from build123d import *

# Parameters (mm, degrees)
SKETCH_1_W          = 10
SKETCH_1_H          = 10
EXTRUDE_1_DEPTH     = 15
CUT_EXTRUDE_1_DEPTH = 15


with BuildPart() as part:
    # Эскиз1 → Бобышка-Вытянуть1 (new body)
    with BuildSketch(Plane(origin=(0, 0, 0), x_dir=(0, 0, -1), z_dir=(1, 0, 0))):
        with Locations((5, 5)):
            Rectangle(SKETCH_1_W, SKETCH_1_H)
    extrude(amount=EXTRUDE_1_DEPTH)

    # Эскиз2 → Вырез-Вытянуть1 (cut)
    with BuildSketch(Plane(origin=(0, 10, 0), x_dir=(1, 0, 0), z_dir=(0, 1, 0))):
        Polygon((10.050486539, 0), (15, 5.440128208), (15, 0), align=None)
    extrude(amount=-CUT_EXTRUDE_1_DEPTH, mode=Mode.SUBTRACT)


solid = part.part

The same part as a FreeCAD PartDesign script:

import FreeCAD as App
import Part
import Sketcher

V = App.Vector

doc = App.newDocument("Part")
body = doc.addObject("PartDesign::Body", "Body")

# Sketch on YZ plane
sketch1 = body.newObject("Sketcher::SketchObject", "Sketch")
sketch1.AttachmentSupport = (doc.getObject("YZ_Plane"), [""])
sketch1.MapMode = "FlatFace"
sketch1.addGeometry(Part.LineSegment(V(10, 0, 0), V(0, 0, 0)), False)
sketch1.addGeometry(Part.LineSegment(V(0, 0, 0), V(0, -10, 0)), False)
sketch1.addGeometry(Part.LineSegment(V(0, -10, 0), V(10, -10, 0)), False)
sketch1.addGeometry(Part.LineSegment(V(10, -10, 0), V(10, 0, 0)), False)
sketch1.addConstraint(Sketcher.Constraint("Coincident", 0, 2, 1, 1))
sketch1.addConstraint(Sketcher.Constraint("Coincident", 1, 2, 2, 1))
sketch1.addConstraint(Sketcher.Constraint("Coincident", 2, 2, 3, 1))
sketch1.addConstraint(Sketcher.Constraint("Coincident", 3, 2, 0, 1))
sketch1.addConstraint(Sketcher.Constraint("Horizontal", 0))
sketch1.addConstraint(Sketcher.Constraint("Vertical", 1))
sketch1.addConstraint(Sketcher.Constraint("Horizontal", 2))
sketch1.addConstraint(Sketcher.Constraint("Vertical", 3))
sketch1.addConstraint(Sketcher.Constraint("Coincident", 0, 2, -1, 1))
sketch1.addConstraint(Sketcher.Constraint("Equal", 2, 1))
sketch1.addConstraint(Sketcher.Constraint("DistanceX", 0, 2, 0, 1, 10.0))
pad1 = body.newObject("PartDesign::Pad", "Pad")
pad1.Profile = sketch1
pad1.Length = 15

# Sketch on XZ plane
sketch2 = body.newObject("Sketcher::SketchObject", "Sketch001")
sketch2.AttachmentSupport = (doc.getObject("XZ_Plane"), [""])
sketch2.MapMode = "FlatFace"
sketch2.AttachmentOffset = App.Placement(V(0, 0, -10), App.Rotation())
sketch2.addGeometry(Part.LineSegment(V(15, -5.4, 0), V(10.1, 0, 0)), False)
sketch2.addGeometry(Part.LineSegment(V(10.1, 0, 0), V(15, 0, 0)), False)
sketch2.addGeometry(Part.LineSegment(V(15, 0, 0), V(15, -5.4, 0)), False)
sketch2.addConstraint(Sketcher.Constraint("Coincident", 0, 2, 1, 1))
sketch2.addConstraint(Sketcher.Constraint("Coincident", 1, 2, 2, 1))
sketch2.addConstraint(Sketcher.Constraint("Coincident", 2, 2, 0, 1))
sketch2.addConstraint(Sketcher.Constraint("Horizontal", 1))
sketch2.addConstraint(Sketcher.Constraint("Vertical", 2))
sketch2.addConstraint(Sketcher.Constraint("PointOnObject", 0, 2, -1))
sketch2.addConstraint(Sketcher.Constraint("DistanceX", -1, 1, 1, 2, 15.0))
sketch2.addConstraint(Sketcher.Constraint("DistanceY", 2, 2, 2, 1, 5.440128))
sketch2.addConstraint(Sketcher.Constraint("DistanceX", 1, 1, 1, 2, 4.949513))
pocket1 = body.newObject("PartDesign::Pocket", "Pocket")
pocket1.Profile = sketch2
pocket1.Length = 15
pocket1.Reversed = True

doc.recompute()
